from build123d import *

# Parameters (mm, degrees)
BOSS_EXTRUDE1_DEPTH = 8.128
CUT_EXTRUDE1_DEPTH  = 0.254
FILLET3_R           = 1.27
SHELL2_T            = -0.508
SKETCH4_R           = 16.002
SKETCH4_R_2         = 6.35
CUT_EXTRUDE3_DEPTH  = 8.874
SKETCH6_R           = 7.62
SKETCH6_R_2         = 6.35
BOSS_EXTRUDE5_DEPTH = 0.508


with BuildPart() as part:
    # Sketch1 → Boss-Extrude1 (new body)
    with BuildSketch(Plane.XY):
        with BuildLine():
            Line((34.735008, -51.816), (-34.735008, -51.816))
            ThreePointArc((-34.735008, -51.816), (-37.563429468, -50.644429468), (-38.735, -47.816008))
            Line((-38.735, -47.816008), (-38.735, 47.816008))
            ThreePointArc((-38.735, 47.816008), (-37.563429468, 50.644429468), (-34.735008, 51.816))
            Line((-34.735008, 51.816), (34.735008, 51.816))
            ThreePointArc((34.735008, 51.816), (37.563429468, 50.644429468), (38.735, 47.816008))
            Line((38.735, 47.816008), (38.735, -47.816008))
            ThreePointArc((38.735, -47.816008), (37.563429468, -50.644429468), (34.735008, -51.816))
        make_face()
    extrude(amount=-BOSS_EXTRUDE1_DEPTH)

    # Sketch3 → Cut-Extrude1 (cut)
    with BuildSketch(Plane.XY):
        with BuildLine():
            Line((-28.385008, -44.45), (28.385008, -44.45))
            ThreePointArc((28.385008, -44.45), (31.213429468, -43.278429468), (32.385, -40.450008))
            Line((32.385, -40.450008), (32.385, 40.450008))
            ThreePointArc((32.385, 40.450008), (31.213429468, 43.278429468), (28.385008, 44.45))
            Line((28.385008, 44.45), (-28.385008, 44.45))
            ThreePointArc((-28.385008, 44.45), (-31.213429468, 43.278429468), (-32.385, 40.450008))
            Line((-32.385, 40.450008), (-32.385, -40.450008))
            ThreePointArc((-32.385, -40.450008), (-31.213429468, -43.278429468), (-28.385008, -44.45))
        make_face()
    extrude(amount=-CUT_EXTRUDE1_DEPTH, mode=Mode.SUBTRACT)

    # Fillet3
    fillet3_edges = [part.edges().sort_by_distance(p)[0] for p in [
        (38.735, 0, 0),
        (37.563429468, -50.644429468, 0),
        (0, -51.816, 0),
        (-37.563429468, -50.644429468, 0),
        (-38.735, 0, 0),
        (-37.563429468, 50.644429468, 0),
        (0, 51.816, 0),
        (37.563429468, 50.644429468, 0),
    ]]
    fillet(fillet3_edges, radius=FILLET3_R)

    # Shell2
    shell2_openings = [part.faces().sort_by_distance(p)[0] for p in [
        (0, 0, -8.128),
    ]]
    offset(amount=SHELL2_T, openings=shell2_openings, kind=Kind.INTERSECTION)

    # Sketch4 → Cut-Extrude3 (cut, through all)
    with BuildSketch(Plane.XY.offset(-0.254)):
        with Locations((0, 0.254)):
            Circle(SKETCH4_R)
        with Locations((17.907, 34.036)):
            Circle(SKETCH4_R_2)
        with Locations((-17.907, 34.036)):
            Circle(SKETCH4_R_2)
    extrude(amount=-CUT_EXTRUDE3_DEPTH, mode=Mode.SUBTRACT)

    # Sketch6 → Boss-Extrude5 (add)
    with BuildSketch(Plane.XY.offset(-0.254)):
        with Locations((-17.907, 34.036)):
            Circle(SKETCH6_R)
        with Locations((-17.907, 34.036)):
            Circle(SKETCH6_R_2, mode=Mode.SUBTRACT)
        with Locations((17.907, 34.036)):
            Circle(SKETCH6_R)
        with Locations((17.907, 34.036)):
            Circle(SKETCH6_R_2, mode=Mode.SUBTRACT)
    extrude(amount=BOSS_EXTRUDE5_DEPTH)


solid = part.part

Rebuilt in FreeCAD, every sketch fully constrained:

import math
import FreeCAD as App
import Part
import Sketcher
from FreeCAD import Vector
Q = App.Units.Quantity


def edges_at(feature, points):
    """Names of the edges that pass closest to the given points."""
    edges = feature.Shape.Edges
    near = lambda p: min(range(len(edges)), key=lambda i: edges[i].distToShape(Part.Vertex(*p))[0])
    return sorted({f"Edge{near(p) + 1}" for p in points})


def faces_at(feature, points):
    """Names of the faces that lie closest to the given points."""
    faces = feature.Shape.Faces
    near = lambda p: min(range(len(faces)), key=lambda i: faces[i].distToShape(Part.Vertex(*p))[0])
    return sorted({f"Face{near(p) + 1}" for p in points})

doc = App.newDocument("Part")
body = doc.addObject("PartDesign::Body", "Body")

# Sketch on XY plane
sketch1 = body.newObject("Sketcher::SketchObject", "Sketch")
sketch1.AttachmentSupport = (doc.getObject("XY_Plane"), [""])
sketch1.MapMode = "FlatFace"
sketch1.addGeometry([
    Part.LineSegment(Vector(-34.735008, -51.816, 0), Vector(34.735008, -51.816, 0)),  # 0
    Part.ArcOfCircle(Part.Circle(Vector(34.735008, -47.816008, 0), Vector(0, 0, 1), 3.999992), math.radians(-90), math.radians(0)),  # 1
    Part.LineSegment(Vector(38.735, -47.816008, 0), Vector(38.735, 47.816008, 0)),  # 2
    Part.ArcOfCircle(Part.Circle(Vector(34.735008, 47.816008, 0), Vector(0, 0, 1), 3.999992), math.radians(0), math.radians(90)),  # 3
    Part.LineSegment(Vector(34.735008, 51.816, 0), Vector(-34.735008, 51.816, 0)),  # 4
    Part.ArcOfCircle(Part.Circle(Vector(-34.735008, 47.816008, 0), Vector(0, 0, 1), 3.999992), math.radians(90), math.radians(180)),  # 5
    Part.LineSegment(Vector(-38.735, 47.816008, 0), Vector(-38.735, -47.816008, 0)),  # 6
    Part.ArcOfCircle(Part.Circle(Vector(-34.735008, -47.816008, 0), Vector(0, 0, 1), 3.999992), math.radians(180), math.radians(270)),  # 7
], False)
sketch1.addConstraint([
    Sketcher.Constraint("Tangent", 0, 2, 1, 1),
    Sketcher.Constraint("Tangent", 1, 2, 2, 1),
    Sketcher.Constraint("Tangent", 2, 2, 3, 1),
    Sketcher.Constraint("Tangent", 3, 2, 4, 1),
    Sketcher.Constraint("Tangent", 4, 2, 5, 1),
    Sketcher.Constraint("Tangent", 5, 2, 6, 1),
    Sketcher.Constraint("Tangent", 6, 2, 7, 1),
    Sketcher.Constraint("Tangent", 7, 2, 0, 1),
    Sketcher.Constraint("Horizontal", 0),
    Sketcher.Constraint("Vertical", 2),
    Sketcher.Constraint("Horizontal", 4),
    Sketcher.Constraint("Vertical", 6),
    Sketcher.Constraint("Equal", 1, 3),
    Sketcher.Constraint("Equal", 3, 5),
    Sketcher.Constraint("Equal", 5, 7),
    Sketcher.Constraint("Symmetric", 1, 3, 5, 3, -1, 1),
    Sketcher.Constraint("DistanceY", 0, 2, -1, 1, Q("2.04 in")),
    Sketcher.Constraint("DistanceX", 5, 2, 2, 2, Q("3.05 in")),
    Sketcher.Constraint("Radius", 1, 3.999992),
])
pad1 = body.newObject("PartDesign::Pad", "Pad")
pad1.Profile = sketch1
pad1.Length = Q("0.32 in")
pad1.Reversed = True

# Sketch on XY plane
sketch2 = body.newObject("Sketcher::SketchObject", "Sketch001")
sketch2.AttachmentSupport = (doc.getObject("XY_Plane"), [""])
sketch2.MapMode = "FlatFace"
sketch2.addGeometry([
    Part.LineSegment(Vector(-28.385008, -44.45, 0), Vector(28.385008, -44.45, 0)),  # 0
    Part.ArcOfCircle(Part.Circle(Vector(28.385008, -40.450008, 0), Vector(0, 0, 1), 3.999992), math.radians(-90), math.radians(0)),  # 1
    Part.LineSegment(Vector(32.385, -40.450008, 0), Vector(32.385, 40.450008, 0)),  # 2
    Part.ArcOfCircle(Part.Circle(Vector(28.385008, 40.450008, 0), Vector(0, 0, 1), 3.999992), math.radians(0), math.radians(90)),  # 3
    Part.LineSegment(Vector(28.385008, 44.45, 0), Vector(-28.385008, 44.45, 0)),  # 4
    Part.ArcOfCircle(Part.Circle(Vector(-28.385008, 40.450008, 0), Vector(0, 0, 1), 3.999992), math.radians(90), math.radians(180)),  # 5
    Part.LineSegment(Vector(-32.385, 40.450008, 0), Vector(-32.385, -40.450008, 0)),  # 6
    Part.ArcOfCircle(Part.Circle(Vector(-28.385008, -40.450008, 0), Vector(0, 0, 1), 3.999992), math.radians(180), math.radians(270)),  # 7
], False)
sketch2.addConstraint([
    Sketcher.Constraint("Tangent", 0, 2, 1, 1),
    Sketcher.Constraint("Tangent", 1, 2, 2, 1),
    Sketcher.Constraint("Tangent", 2, 2, 3, 1),
    Sketcher.Constraint("Tangent", 3, 2, 4, 1),
    Sketcher.Constraint("Tangent", 4, 2, 5, 1),
    Sketcher.Constraint("Tangent", 5, 2, 6, 1),
    Sketcher.Constraint("Tangent", 6, 2, 7, 1),
    Sketcher.Constraint("Tangent", 7, 2, 0, 1),
    Sketcher.Constraint("Horizontal", 0),
    Sketcher.Constraint("Vertical", 2),
    Sketcher.Constraint("Horizontal", 4),
    Sketcher.Constraint("Vertical", 6),
    Sketcher.Constraint("Equal", 1, 3),
    Sketcher.Constraint("Equal", 3, 5),
    Sketcher.Constraint("Equal", 5, 7),
    Sketcher.Constraint("Symmetric", 1, 3, 5, 3, -1, 1),
    Sketcher.Constraint("DistanceY", 0, 2, -1, 1, Q("1.75 in")),
    Sketcher.Constraint("DistanceX", 5, 2, 2, 2, Q("2.55 in")),
    Sketcher.Constraint("Radius", 1, 3.999992),
])
pocket1 = body.newObject("PartDesign::Pocket", "Pocket")
pocket1.Profile = sketch2
pocket1.Length = Q("0.01 in")
doc.recompute()

fillet = body.newObject("PartDesign::Fillet", "Fillet")
fillet.Base = (pocket1, edges_at(pocket1, [
    (38.735, 0, 0),
    (37.563, -50.644, 0),
    (0, -51.816, 0),
    (-37.563, -50.644, 0),
    (-38.735, 0, 0),
    (-37.563, 50.644, 0),
    (0, 51.816, 0),
    (37.563, 50.644, 0),
]))
fillet.Radius = Q("0.05 in")
doc.recompute()

thickness = body.newObject("PartDesign::Thickness", "Thickness")
thickness.Base = (fillet, faces_at(fillet, [(0, 0, -8.128)]))
thickness.Value = Q("0.02 in")
thickness.Reversed = True
thickness.Join = "Intersection"

# Sketch on XY plane
sketch3 = body.newObject("Sketcher::SketchObject", "Sketch002")
sketch3.AttachmentSupport = (doc.getObject("XY_Plane"), [""])
sketch3.MapMode = "FlatFace"
sketch3.AttachmentOffset = App.Placement(Vector(0, 0, -0.01 * 25.4), App.Rotation())
sketch3.addGeometry([
    Part.Circle(Vector(0, 0.254, 0), Vector(0, 0, 1), 16.002),
    Part.Circle(Vector(17.907, 34.036, 0), Vector(0, 0, 1), 6.35),
    Part.Circle(Vector(-17.907, 34.036, 0), Vector(0, 0, 1), 6.35),
], False)
sketch3.addConstraint([
    Sketcher.Constraint("Equal", 1, 2),
    Sketcher.Constraint("Symmetric", 1, 3, 2, 3, -2),
    Sketcher.Constraint("PointOnObject", 0, 3, -2),
    Sketcher.Constraint("Diameter", 1, Q("0.5 in")),
    Sketcher.Constraint("Diameter", 0, Q("1.26 in")),
    Sketcher.Constraint("DistanceY", -1, 1, 0, 3, Q("0.01 in")),
    Sketcher.Constraint("DistanceY", -1, 1, 1, 3, Q("1.34 in")),
    Sketcher.Constraint("DistanceX", 2, 3, 1, 3, Q("1.41 in")),
])
pocket2 = body.newObject("PartDesign::Pocket", "Pocket001")
pocket2.Profile = sketch3
pocket2.Type = "ThroughAll"

# Sketch on XY plane
sketch4 = body.newObject("Sketcher::SketchObject", "Sketch003")
sketch4.AttachmentSupport = (doc.getObject("XY_Plane"), [""])
sketch4.MapMode = "FlatFace"
sketch4.AttachmentOffset = App.Placement(Vector(0, 0, -0.01 * 25.4), App.Rotation())
sketch4.addGeometry([
    Part.Circle(Vector(-17.907, 34.036, 0), Vector(0, 0, 1), 7.62),
    Part.Circle(Vector(-17.907, 34.036, 0), Vector(0, 0, 1), 6.35),
    Part.Circle(Vector(17.907, 34.036, 0), Vector(0, 0, 1), 7.62),
    Part.Circle(Vector(17.907, 34.036, 0), Vector(0, 0, 1), 6.35),
], False)
sketch4.addConstraint([
    Sketcher.Constraint("Coincident", 1, 3, 0, 3),
    Sketcher.Constraint("Coincident", 3, 3, 2, 3),
    Sketcher.Constraint("Equal", 0, 2),
    Sketcher.Constraint("Equal", 1, 3),
    Sketcher.Constraint("Symmetric", 0, 3, 2, 3, -2),
    Sketcher.Constraint("Diameter", 0, Q("0.6 in")),
    Sketcher.Constraint("Diameter", 1, Q("0.5 in")),
    Sketcher.Constraint("DistanceY", -1, 1, 0, 3, Q("1.34 in")),
    Sketcher.Constraint("DistanceX", 0, 3, 2, 3, Q("1.41 in")),
])
pad2 = body.newObject("PartDesign::Pad", "Pad001")
pad2.Profile = sketch4
pad2.Length = Q("0.02 in")

doc.recompute()
